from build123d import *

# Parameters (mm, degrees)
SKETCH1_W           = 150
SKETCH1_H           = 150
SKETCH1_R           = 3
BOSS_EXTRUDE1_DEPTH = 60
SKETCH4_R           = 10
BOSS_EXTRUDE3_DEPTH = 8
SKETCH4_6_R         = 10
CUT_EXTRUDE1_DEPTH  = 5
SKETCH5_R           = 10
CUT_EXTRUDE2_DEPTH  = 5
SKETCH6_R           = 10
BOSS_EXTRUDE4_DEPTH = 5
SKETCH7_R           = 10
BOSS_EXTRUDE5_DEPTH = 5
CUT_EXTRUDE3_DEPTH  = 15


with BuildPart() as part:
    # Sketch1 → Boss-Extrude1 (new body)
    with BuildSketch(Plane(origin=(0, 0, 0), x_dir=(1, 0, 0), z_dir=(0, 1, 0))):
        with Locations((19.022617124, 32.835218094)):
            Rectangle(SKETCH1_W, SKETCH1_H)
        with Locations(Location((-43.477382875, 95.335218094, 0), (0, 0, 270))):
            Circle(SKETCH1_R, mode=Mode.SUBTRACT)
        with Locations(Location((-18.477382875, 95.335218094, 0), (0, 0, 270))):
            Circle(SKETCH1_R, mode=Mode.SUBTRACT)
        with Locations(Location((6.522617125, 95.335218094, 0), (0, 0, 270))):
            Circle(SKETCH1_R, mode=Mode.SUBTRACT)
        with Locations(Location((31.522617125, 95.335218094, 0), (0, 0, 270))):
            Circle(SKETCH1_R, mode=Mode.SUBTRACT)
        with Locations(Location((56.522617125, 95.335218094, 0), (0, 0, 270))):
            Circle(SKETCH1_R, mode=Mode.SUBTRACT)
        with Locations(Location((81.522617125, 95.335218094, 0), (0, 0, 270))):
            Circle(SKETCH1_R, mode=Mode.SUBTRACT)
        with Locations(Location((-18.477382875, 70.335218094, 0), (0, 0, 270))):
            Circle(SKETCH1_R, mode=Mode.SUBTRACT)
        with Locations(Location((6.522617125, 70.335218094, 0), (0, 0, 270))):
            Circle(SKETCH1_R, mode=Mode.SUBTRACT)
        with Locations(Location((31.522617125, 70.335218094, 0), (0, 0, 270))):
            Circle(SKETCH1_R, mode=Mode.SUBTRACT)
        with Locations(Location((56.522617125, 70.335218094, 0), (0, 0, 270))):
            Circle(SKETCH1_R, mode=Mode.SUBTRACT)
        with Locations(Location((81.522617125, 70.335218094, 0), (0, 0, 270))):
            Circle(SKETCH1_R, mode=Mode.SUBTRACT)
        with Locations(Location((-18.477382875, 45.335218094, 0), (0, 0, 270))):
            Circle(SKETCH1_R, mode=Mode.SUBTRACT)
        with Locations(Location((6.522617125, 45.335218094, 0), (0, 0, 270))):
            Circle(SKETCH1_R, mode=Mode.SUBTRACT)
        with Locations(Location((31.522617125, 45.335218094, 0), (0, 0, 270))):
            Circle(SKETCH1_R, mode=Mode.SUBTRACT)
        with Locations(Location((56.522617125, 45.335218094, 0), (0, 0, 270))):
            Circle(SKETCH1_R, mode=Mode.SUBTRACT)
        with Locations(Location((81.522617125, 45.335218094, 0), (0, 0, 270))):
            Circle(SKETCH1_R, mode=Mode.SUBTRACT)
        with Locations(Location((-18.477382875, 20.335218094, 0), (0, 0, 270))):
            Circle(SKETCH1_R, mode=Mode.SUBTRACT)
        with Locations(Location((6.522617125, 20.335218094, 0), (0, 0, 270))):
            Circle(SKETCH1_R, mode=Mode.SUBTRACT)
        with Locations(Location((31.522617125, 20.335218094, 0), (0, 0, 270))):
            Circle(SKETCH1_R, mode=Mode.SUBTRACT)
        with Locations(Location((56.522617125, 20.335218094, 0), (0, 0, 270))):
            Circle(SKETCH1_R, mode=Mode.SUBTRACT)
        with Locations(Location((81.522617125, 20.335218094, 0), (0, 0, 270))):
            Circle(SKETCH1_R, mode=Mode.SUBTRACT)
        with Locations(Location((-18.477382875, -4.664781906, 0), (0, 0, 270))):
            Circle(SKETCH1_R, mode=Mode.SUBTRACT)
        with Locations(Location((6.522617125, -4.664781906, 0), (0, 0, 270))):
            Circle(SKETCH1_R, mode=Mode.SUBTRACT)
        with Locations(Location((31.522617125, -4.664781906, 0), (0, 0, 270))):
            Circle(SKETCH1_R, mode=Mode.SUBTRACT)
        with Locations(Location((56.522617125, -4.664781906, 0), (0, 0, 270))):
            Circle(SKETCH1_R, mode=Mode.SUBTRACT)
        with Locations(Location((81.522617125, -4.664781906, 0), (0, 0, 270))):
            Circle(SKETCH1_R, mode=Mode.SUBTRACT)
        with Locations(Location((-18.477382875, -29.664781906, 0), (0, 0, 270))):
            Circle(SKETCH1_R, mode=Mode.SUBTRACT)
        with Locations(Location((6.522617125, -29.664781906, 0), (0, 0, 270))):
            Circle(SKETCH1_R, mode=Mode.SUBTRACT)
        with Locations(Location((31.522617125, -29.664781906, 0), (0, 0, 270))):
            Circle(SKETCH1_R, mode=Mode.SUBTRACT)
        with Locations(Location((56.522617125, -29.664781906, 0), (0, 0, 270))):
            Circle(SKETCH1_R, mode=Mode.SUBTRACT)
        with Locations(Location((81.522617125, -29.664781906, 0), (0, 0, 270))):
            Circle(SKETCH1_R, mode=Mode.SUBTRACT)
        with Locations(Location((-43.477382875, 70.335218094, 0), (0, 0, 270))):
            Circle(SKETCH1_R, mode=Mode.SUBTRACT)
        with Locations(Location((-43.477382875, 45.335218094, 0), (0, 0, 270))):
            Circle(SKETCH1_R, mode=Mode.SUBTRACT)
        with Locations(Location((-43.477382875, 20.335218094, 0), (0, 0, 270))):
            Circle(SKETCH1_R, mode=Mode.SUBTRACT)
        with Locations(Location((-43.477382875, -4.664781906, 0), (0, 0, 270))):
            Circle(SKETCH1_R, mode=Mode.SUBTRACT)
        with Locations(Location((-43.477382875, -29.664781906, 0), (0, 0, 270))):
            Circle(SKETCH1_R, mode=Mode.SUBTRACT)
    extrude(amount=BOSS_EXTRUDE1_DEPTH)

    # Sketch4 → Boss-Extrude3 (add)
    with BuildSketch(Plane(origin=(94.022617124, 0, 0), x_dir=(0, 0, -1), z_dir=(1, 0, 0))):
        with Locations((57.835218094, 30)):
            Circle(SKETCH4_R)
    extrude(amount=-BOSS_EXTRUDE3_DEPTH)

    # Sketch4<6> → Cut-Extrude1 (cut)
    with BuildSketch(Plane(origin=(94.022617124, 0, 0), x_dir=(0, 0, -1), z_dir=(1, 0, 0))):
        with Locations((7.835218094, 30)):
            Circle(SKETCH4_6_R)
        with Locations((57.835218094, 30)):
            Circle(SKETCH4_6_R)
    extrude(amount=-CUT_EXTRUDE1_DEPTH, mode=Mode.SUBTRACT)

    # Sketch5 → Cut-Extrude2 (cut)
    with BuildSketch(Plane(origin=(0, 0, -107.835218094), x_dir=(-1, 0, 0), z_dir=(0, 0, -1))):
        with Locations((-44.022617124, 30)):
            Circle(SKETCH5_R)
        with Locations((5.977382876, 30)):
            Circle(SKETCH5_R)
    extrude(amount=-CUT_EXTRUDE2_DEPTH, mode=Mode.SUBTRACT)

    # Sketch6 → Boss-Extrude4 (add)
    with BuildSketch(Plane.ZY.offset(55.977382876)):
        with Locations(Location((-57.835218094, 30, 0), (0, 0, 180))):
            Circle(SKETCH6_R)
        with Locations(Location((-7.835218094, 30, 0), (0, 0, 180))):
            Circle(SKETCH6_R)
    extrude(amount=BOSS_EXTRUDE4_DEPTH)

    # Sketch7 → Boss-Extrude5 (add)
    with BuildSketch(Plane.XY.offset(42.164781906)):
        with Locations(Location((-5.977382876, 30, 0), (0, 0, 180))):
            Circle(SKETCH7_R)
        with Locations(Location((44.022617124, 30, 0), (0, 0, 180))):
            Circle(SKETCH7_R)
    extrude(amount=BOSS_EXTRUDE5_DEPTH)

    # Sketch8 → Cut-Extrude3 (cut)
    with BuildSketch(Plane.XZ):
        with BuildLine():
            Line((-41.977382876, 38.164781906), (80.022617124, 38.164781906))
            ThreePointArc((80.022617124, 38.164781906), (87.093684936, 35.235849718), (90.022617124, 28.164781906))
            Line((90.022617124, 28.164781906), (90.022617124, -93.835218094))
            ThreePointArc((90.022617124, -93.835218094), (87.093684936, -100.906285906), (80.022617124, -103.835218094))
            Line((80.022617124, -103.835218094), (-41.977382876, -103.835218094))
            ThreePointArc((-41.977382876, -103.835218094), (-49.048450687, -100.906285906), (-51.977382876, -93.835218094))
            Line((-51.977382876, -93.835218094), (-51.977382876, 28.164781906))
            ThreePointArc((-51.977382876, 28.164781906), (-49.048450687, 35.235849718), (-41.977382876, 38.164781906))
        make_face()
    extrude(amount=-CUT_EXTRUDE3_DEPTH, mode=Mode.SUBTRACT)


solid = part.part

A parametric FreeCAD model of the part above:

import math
import FreeCAD as App
import Part
import Sketcher

V = App.Vector


def add_polygon(sketch, points):
    """Adds a closed chain of lines whose ends are joined by coincident constraints."""
    first, n = sketch.GeometryCount, len(points)
    for a, b in zip(points, points[1:] + points[:1]):
        sketch.addGeometry(Part.LineSegment(App.Vector(*a, 0), App.Vector(*b, 0)), False)
    for i in range(n):
        sketch.addConstraint(Sketcher.Constraint("Coincident", first + i, 2, first + (i + 1) % n, 1))

doc = App.newDocument("Part")
body = doc.addObject("PartDesign::Body", "Body")

sketch1 = body.newObject("Sketcher::SketchObject", "Sketch")
sketch1.AttachmentSupport = (doc.getObject("XZ_Plane"), [""])
sketch1.MapMode = "FlatFace"
add_polygon(sketch1, [(-55.977383, -107.835218), (-55.977383, 42.164782), (94.022617, 42.164782), (94.022617, -107.835218)])
sketch1.addGeometry(Part.Circle(V(-43.477383, 29.664782, 0), V(0, 0, 1), 3), False)
sketch1.addGeometry(Part.Circle(V(-18.477383, 29.664782, 0), V(0, 0, 1), 3), False)
sketch1.addGeometry(Part.Circle(V(-43.477383, 4.664782, 0), V(0, 0, 1), 3), False)
sketch1.addGeometry(Part.Circle(V(-18.477383, 4.664782, 0), V(0, 0, 1), 3), False)
sketch1.addGeometry(Part.Circle(V(6.522617, 29.664782, 0), V(0, 0, 1), 3), False)
sketch1.addGeometry(Part.Circle(V(6.522617, 4.664782, 0), V(0, 0, 1), 3), False)
sketch1.addGeometry(Part.Circle(V(-43.477383, -20.335218, 0), V(0, 0, 1), 3), False)
sketch1.addGeometry(Part.Circle(V(-18.477383, -20.335218, 0), V(0, 0, 1), 3), False)
sketch1.addGeometry(Part.Circle(V(6.522617, -20.335218, 0), V(0, 0, 1), 3), False)
sketch1.addGeometry(Part.Circle(V(31.522617, 29.664782, 0), V(0, 0, 1), 3), False)
sketch1.addGeometry(Part.Circle(V(31.522617, 4.664782, 0), V(0, 0, 1), 3), False)
sketch1.addGeometry(Part.Circle(V(56.522617, 29.664782, 0), V(0, 0, 1), 3), False)
sketch1.addGeometry(Part.Circle(V(81.522617, 29.664782, 0), V(0, 0, 1), 3), False)
sketch1.addGeometry(Part.Circle(V(56.522617, 4.664782, 0), V(0, 0, 1), 3), False)
sketch1.addGeometry(Part.Circle(V(81.522617, 4.664782, 0), V(0, 0, 1), 3), False)
sketch1.addGeometry(Part.Circle(V(31.522617, -20.335218, 0), V(0, 0, 1), 3), False)
sketch1.addGeometry(Part.Circle(V(56.522617, -20.335218, 0), V(0, 0, 1), 3), False)
sketch1.addGeometry(Part.Circle(V(81.522617, -20.335218, 0), V(0, 0, 1), 3), False)
sketch1.addGeometry(Part.Circle(V(-43.477383, -45.335218, 0), V(0, 0, 1), 3), False)
sketch1.addGeometry(Part.Circle(V(-18.477383, -45.335218, 0), V(0, 0, 1), 3), False)
sketch1.addGeometry(Part.Circle(V(6.522617, -45.335218, 0), V(0, 0, 1), 3), False)
sketch1.addGeometry(Part.Circle(V(-43.477383, -70.335218, 0), V(0, 0, 1), 3), False)
sketch1.addGeometry(Part.Circle(V(-18.477383, -70.335218, 0), V(0, 0, 1), 3), False)
sketch1.addGeometry(Part.Circle(V(-43.477383, -95.335218, 0), V(0, 0, 1), 3), False)
sketch1.addGeometry(Part.Circle(V(-18.477383, -95.335218, 0), V(0, 0, 1), 3), False)
sketch1.addGeometry(Part.Circle(V(6.522617, -70.335218, 0), V(0, 0, 1), 3), False)
sketch1.addGeometry(Part.Circle(V(6.522617, -95.335218, 0), V(0, 0, 1), 3), False)
sketch1.addGeometry(Part.Circle(V(31.522617, -45.335218, 0), V(0, 0, 1), 3), False)
sketch1.addGeometry(Part.Circle(V(56.522617, -45.335218, 0), V(0, 0, 1), 3), False)
sketch1.addGeometry(Part.Circle(V(81.522617, -45.335218, 0), V(0, 0, 1), 3), False)
sketch1.addGeometry(Part.Circle(V(31.522617, -70.335218, 0), V(0, 0, 1), 3), False)
sketch1.addGeometry(Part.Circle(V(31.522617, -95.335218, 0), V(0, 0, 1), 3), False)
sketch1.addGeometry(Part.Circle(V(56.522617, -70.335218, 0), V(0, 0, 1), 3), False)
sketch1.addGeometry(Part.Circle(V(81.522617, -70.335218, 0), V(0, 0, 1), 3), False)
sketch1.addGeometry(Part.Circle(V(56.522617, -95.335218, 0), V(0, 0, 1), 3), False)
sketch1.addGeometry(Part.Circle(V(81.522617, -95.335218, 0), V(0, 0, 1), 3), False)
sketch1.addConstraint(Sketcher.Constraint("Vertical", 0))
sketch1.addConstraint(Sketcher.Constraint("Horizontal", 1))
sketch1.addConstraint(Sketcher.Constraint("Vertical", 2))
sketch1.addConstraint(Sketcher.Constraint("Horizontal", 3))
sketch1.addConstraint(Sketcher.Constraint("Equal", 4, 5))
sketch1.addConstraint(Sketcher.Constraint("Equal", 5, 6))
sketch1.addConstraint(Sketcher.Constraint("Equal", 6, 7))
sketch1.addConstraint(Sketcher.Constraint("Equal", 7, 8))
sketch1.addConstraint(Sketcher.Constraint("Equal", 8, 9))
sketch1.addConstraint(Sketcher.Constraint("Equal", 9, 10))
sketch1.addConstraint(Sketcher.Constraint("Equal", 10, 11))
sketch1.addConstraint(Sketcher.Constraint("Equal", 11, 12))
sketch1.addConstraint(Sketcher.Constraint("Equal", 12, 13))
sketch1.addConstraint(Sketcher.Constraint("Equal", 13, 14))
sketch1.addConstraint(Sketcher.Constraint("Equal", 14, 15))
sketch1.addConstraint(Sketcher.Constraint("Equal", 15, 16))
sketch1.addConstraint(Sketcher.Constraint("Equal", 16, 17))
sketch1.addConstraint(Sketcher.Constraint("Equal", 17, 18))
sketch1.addConstraint(Sketcher.Constraint("Equal", 18, 19))
sketch1.addConstraint(Sketcher.Constraint("Equal", 19, 20))
sketch1.addConstraint(Sketcher.Constraint("Equal", 20, 21))
sketch1.addConstraint(Sketcher.Constraint("Equal", 21, 22))
sketch1.addConstraint(Sketcher.Constraint("Equal", 22, 23))
sketch1.addConstraint(Sketcher.Constraint("Equal", 23, 24))
sketch1.addConstraint(Sketcher.Constraint("Equal", 24, 25))
sketch1.addConstraint(Sketcher.Constraint("Equal", 25, 26))
sketch1.addConstraint(Sketcher.Constraint("Equal", 26, 27))
sketch1.addConstraint(Sketcher.Constraint("Equal", 27, 28))
sketch1.addConstraint(Sketcher.Constraint("Equal", 28, 29))
sketch1.addConstraint(Sketcher.Constraint("Equal", 29, 30))
sketch1.addConstraint(Sketcher.Constraint("Equal", 30, 31))
sketch1.addConstraint(Sketcher.Constraint("Equal", 31, 32))
sketch1.addConstraint(Sketcher.Constraint("Equal", 32, 33))
sketch1.addConstraint(Sketcher.Constraint("Equal", 33, 34))
sketch1.addConstraint(Sketcher.Constraint("Equal", 34, 35))
sketch1.addConstraint(Sketcher.Constraint("Equal", 35, 36))
sketch1.addConstraint(Sketcher.Constraint("Equal", 36, 37))
sketch1.addConstraint(Sketcher.Constraint("Equal", 37, 38))
sketch1.addConstraint(Sketcher.Constraint("Equal", 38, 39))
sketch1.addConstraint(Sketcher.Constraint("Horizontal", 4, 3, 5, 3))
sketch1.addConstraint(Sketcher.Constraint("Horizontal", 6, 3, 7, 3))
sketch1.addConstraint(Sketcher.Constraint("Horizontal", 5, 3, 8, 3))
sketch1.addConstraint(Sketcher.Constraint("Horizontal", 7, 3, 9, 3))
sketch1.addConstraint(Sketcher.Constraint("Horizontal", 10, 3, 11, 3))
sketch1.addConstraint(Sketcher.Constraint("Horizontal", 11, 3, 12, 3))
sketch1.addConstraint(Sketcher.Constraint("Horizontal", 8, 3, 13, 3))
sketch1.addConstraint(Sketcher.Constraint("Horizontal", 9, 3, 14, 3))
sketch1.addConstraint(Sketcher.Constraint("Horizontal", 13, 3, 15, 3))
sketch1.addConstraint(Sketcher.Constraint("Horizontal", 15, 3, 16, 3))
sketch1.addConstraint(Sketcher.Constraint("Horizontal", 14, 3, 17, 3))
sketch1.addConstraint(Sketcher.Constraint("Horizontal", 17, 3, 18, 3))
sketch1.addConstraint(Sketcher.Constraint("Horizontal", 12, 3, 19, 3))
sketch1.addConstraint(Sketcher.Constraint("Horizontal", 19, 3, 20, 3))
sketch1.addConstraint(Sketcher.Constraint("Horizontal", 20, 3, 21, 3))
sketch1.addConstraint(Sketcher.Constraint("Horizontal", 22, 3, 23, 3))
sketch1.addConstraint(Sketcher.Constraint("Horizontal", 23, 3, 24, 3))
sketch1.addConstraint(Sketcher.Constraint("Horizontal", 25, 3, 26, 3))
sketch1.addConstraint(Sketcher.Constraint("Horizontal", 27, 3, 28, 3))
sketch1.addConstraint(Sketcher.Constraint("Horizontal", 26, 3, 29, 3))
sketch1.addConstraint(Sketcher.Constraint("Horizontal", 28, 3, 30, 3))
sketch1.addConstraint(Sketcher.Constraint("Horizontal", 24, 3, 31, 3))
sketch1.addConstraint(Sketcher.Constraint("Horizontal", 31, 3, 32, 3))
sketch1.addConstraint(Sketcher.Constraint("Horizontal", 32, 3, 33, 3))
sketch1.addConstraint(Sketcher.Constraint("Horizontal", 29, 3, 34, 3))
sketch1.addConstraint(Sketcher.Constraint("Horizontal", 30, 3, 35, 3))
sketch1.addConstraint(Sketcher.Constraint("Horizontal", 34, 3, 36, 3))
sketch1.addConstraint(Sketcher.Constraint("Horizontal", 36, 3, 37, 3))
sketch1.addConstraint(Sketcher.Constraint("Horizontal", 35, 3, 38, 3))
sketch1.addConstraint(Sketcher.Constraint("Horizontal", 38, 3, 39, 3))
sketch1.addConstraint(Sketcher.Constraint("Vertical", 4, 3, 6, 3))
sketch1.addConstraint(Sketcher.Constraint("Vertical", 5, 3, 7, 3))
sketch1.addConstraint(Sketcher.Constraint("Vertical", 8, 3, 9, 3))
sketch1.addConstraint(Sketcher.Constraint("Vertical", 6, 3, 10, 3))
sketch1.addConstraint(Sketcher.Constraint("Vertical", 7, 3, 11, 3))
sketch1.addConstraint(Sketcher.Constraint("Vertical", 9, 3, 12, 3))
sketch1.addConstraint(Sketcher.Constraint("Vertical", 13, 3, 14, 3))
sketch1.addConstraint(Sketcher.Constraint("Vertical", 15, 3, 17, 3))
sketch1.addConstraint(Sketcher.Constraint("Vertical", 16, 3, 18, 3))
sketch1.addConstraint(Sketcher.Constraint("Vertical", 14, 3, 19, 3))
sketch1.addConstraint(Sketcher.Constraint("Vertical", 17, 3, 20, 3))
sketch1.addConstraint(Sketcher.Constraint("Vertical", 18, 3, 21, 3))
sketch1.addConstraint(Sketcher.Constraint("Vertical", 10, 3, 22, 3))
sketch1.addConstraint(Sketcher.Constraint("Vertical", 11, 3, 23, 3))
sketch1.addConstraint(Sketcher.Constraint("Vertical", 12, 3, 24, 3))
sketch1.addConstraint(Sketcher.Constraint("Vertical", 22, 3, 25, 3))
sketch1.addConstraint(Sketcher.Constraint("Vertical", 23, 3, 26, 3))
sketch1.addConstraint(Sketcher.Constraint("Vertical", 25, 3, 27, 3))
sketch1.addConstraint(Sketcher.Constraint("Vertical", 26, 3, 28, 3))
sketch1.addConstraint(Sketcher.Constraint("Vertical", 24, 3, 29, 3))
sketch1.addConstraint(Sketcher.Constraint("Vertical", 29, 3, 30, 3))
sketch1.addConstraint(Sketcher.Constraint("Vertical", 19, 3, 31, 3))
sketch1.addConstraint(Sketcher.Constraint("Vertical", 20, 3, 32, 3))
sketch1.addConstraint(Sketcher.Constraint("Vertical", 21, 3, 33, 3))
sketch1.addConstraint(Sketcher.Constraint("Vertical", 31, 3, 34, 3))
sketch1.addConstraint(Sketcher.Constraint("Vertical", 34, 3, 35, 3))
sketch1.addConstraint(Sketcher.Constraint("Vertical", 32, 3, 36, 3))
sketch1.addConstraint(Sketcher.Constraint("Vertical", 33, 3, 37, 3))
sketch1.addConstraint(Sketcher.Constraint("Vertical", 36, 3, 38, 3))
sketch1.addConstraint(Sketcher.Constraint("Vertical", 37, 3, 39, 3))
sketch1.addConstraint(Sketcher.Constraint("Equal", 3, 0))
sketch1.addConstraint(Sketcher.Constraint("Diameter", 4, 6.0))
sketch1.addConstraint(Sketcher.Constraint("DistanceX", 1, 1, 1, 2, 150.0))
sketch1.addConstraint(Sketcher.Constraint("DistanceX", 4, 3, 5, 3, 25.0))
sketch1.addConstraint(Sketcher.Constraint("DistanceY", 6, 3, 4, 3, 25.0))
sketch1.addConstraint(Sketcher.Constraint("DistanceX", 5, 3, 8, 3, 25.0))
sketch1.addConstraint(Sketcher.Constraint("DistanceY", 10, 3, 6, 3, 25.0))
sketch1.addConstraint(Sketcher.Constraint("DistanceX", 8, 3, 13, 3, 25.0))
sketch1.addConstraint(Sketcher.Constraint("DistanceX", 13, 3, 15, 3, 25.0))
sketch1.addConstraint(Sketcher.Constraint("DistanceX", 15, 3, 16, 3, 25.0))
sketch1.addConstraint(Sketcher.Constraint("DistanceY", 22, 3, 10, 3, 25.0))
sketch1.addConstraint(Sketcher.Constraint("DistanceY", 25, 3, 22, 3, 25.0))
sketch1.addConstraint(Sketcher.Constraint("DistanceY", 27, 3, 25, 3, 25.0))
sketch1.addConstraint(Sketcher.Constraint("DistanceX", 0, 2, 4, 3, 12.5))
sketch1.addConstraint(Sketcher.Constraint("DistanceY", 4, 3, 0, 2, 12.5))
sketch1.addConstraint(Sketcher.Constraint("DistanceY", -1, 1, 4, 3, 29.664782))
sketch1.addConstraint(Sketcher.Constraint("DistanceX", 4, 3, -1, 1, 43.477383))
pad1 = body.newObject("PartDesign::Pad", "Pad")
pad1.Profile = sketch1
pad1.Length = 60
pad1.Reversed = True

sketch2 = body.newObject("Sketcher::SketchObject", "Sketch001")
sketch2.AttachmentSupport = (doc.getObject("YZ_Plane"), [""])
sketch2.MapMode = "FlatFace"
sketch2.AttachmentOffset = App.Placement(V(0, 0, 94.022617), App.Rotation())
sketch2.addGeometry(Part.Circle(V(30, -57.835218, 0), V(0, 0, 1), 10), False)
sketch2.addConstraint(Sketcher.Constraint("Diameter", 0, 20.0))
sketch2.addConstraint(Sketcher.Constraint("DistanceX", -1, 1, 0, 3, 30.0))
sketch2.addConstraint(Sketcher.Constraint("DistanceY", 0, 3, -1, 1, 57.835218))
pad2 = body.newObject("PartDesign::Pad", "Pad001")
pad2.Profile = sketch2
pad2.Length = 8
pad2.Reversed = True

sketch3 = body.newObject("Sketcher::SketchObject", "Sketch002")
sketch3.AttachmentSupport = (doc.getObject("YZ_Plane"), [""])
sketch3.MapMode = "FlatFace"
sketch3.AttachmentOffset = App.Placement(V(0, 0, 94.022617), App.Rotation())
sketch3.addGeometry(Part.Circle(V(30, -7.835218, 0), V(0, 0, 1), 10), False)
sketch3.addGeometry(Part.Circle(V(30, -57.835218, 0), V(0, 0, 1), 10), False)
sketch3.addConstraint(Sketcher.Constraint("Equal", 0, 1))
sketch3.addConstraint(Sketcher.Constraint("Vertical", 0, 3, 1, 3))
sketch3.addConstraint(Sketcher.Constraint("Diameter", 0, 20.0))
sketch3.addConstraint(Sketcher.Constraint("DistanceX", -1, 1, 0, 3, 30.0))
sketch3.addConstraint(Sketcher.Constraint("DistanceY", 1, 3, 0, 3, 50.0))
sketch3.addConstraint(Sketcher.Constraint("DistanceY", 0, 3, -1, 1, 7.835218))
pocket1 = body.newObject("PartDesign::Pocket", "Pocket")
pocket1.Profile = sketch3
pocket1.Length = 5

sketch4 = body.newObject("Sketcher::SketchObject", "Sketch003")
sketch4.AttachmentSupport = (doc.getObject("XY_Plane"), [""])
sketch4.MapMode = "FlatFace"
sketch4.AttachmentOffset = App.Placement(V(0, 0, -107.835218), App.Rotation())
sketch4.addGeometry(Part.Circle(V(44.022617, 30, 0), V(0, 0, 1), 10), False)
sketch4.addGeometry(Part.Circle(V(-5.977383, 30, 0), V(0, 0, 1), 10), False)
sketch4.addConstraint(Sketcher.Constraint("Equal", 0, 1))
sketch4.addConstraint(Sketcher.Constraint("Horizontal", 0, 3, 1, 3))
sketch4.addConstraint(Sketcher.Constraint("Diameter", 0, 20.0))
sketch4.addConstraint(Sketcher.Constraint("DistanceY", -1, 1, 0, 3, 30.0))
sketch4.addConstraint(Sketcher.Constraint("DistanceX", 1, 3, 0, 3, 50.0))
sketch4.addConstraint(Sketcher.Constraint("DistanceX", -1, 1, 0, 3, 44.022617))
pocket2 = body.newObject("PartDesign::Pocket", "Pocket001")
pocket2.Profile = sketch4
pocket2.Length = 5
pocket2.Reversed = True

sketch5 = body.newObject("Sketcher::SketchObject", "Sketch004")
sketch5.AttachmentSupport = (doc.getObject("YZ_Plane"), [""])
sketch5.MapMode = "FlatFace"
sketch5.AttachmentOffset = App.Placement(V(0, 0, -55.977383), App.Rotation())
sketch5.addGeometry(Part.Circle(V(30, -57.835218, 0), V(0, 0, 1), 10), False)
sketch5.addGeometry(Part.Circle(V(30, -7.835218, 0), V(0, 0, 1), 10), False)
sketch5.addConstraint(Sketcher.Constraint("Equal", 0, 1))
sketch5.addConstraint(Sketcher.Constraint("Vertical", 0, 3, 1, 3))
sketch5.addConstraint(Sketcher.Constraint("Diameter", 0, 20.0))
sketch5.addConstraint(Sketcher.Constraint("DistanceX", -1, 1, 0, 3, 30.0))
sketch5.addConstraint(Sketcher.Constraint("DistanceY", 0, 3, 1, 3, 50.0))
sketch5.addConstraint(Sketcher.Constraint("DistanceY", 0, 3, -1, 1, 57.835218))
pad3 = body.newObject("PartDesign::Pad", "Pad002")
pad3.Profile = sketch5
pad3.Length = 5
pad3.Reversed = True

sketch6 = body.newObject("Sketcher::SketchObject", "Sketch005")
sketch6.AttachmentSupport = (doc.getObject("XY_Plane"), [""])
sketch6.MapMode = "FlatFace"
sketch6.AttachmentOffset = App.Placement(V(0, 0, 42.164782), App.Rotation())
sketch6.addGeometry(Part.Circle(V(-5.977383, 30, 0), V(0, 0, 1), 10), False)
sketch6.addGeometry(Part.Circle(V(44.022617, 30, 0), V(0, 0, 1), 10), False)
sketch6.addConstraint(Sketcher.Constraint("Equal", 0, 1))
sketch6.addConstraint(Sketcher.Constraint("Horizontal", 0, 3, 1, 3))
sketch6.addConstraint(Sketcher.Constraint("Diameter", 0, 20.0))
sketch6.addConstraint(Sketcher.Constraint("DistanceY", -1, 1, 0, 3, 30.0))
sketch6.addConstraint(Sketcher.Constraint("DistanceX", 0, 3, 1, 3, 50.0))
sketch6.addConstraint(Sketcher.Constraint("DistanceX", 0, 3, -1, 1, 5.977383))
pad4 = body.newObject("PartDesign::Pad", "Pad003")
pad4.Profile = sketch6
pad4.Length = 5

sketch7 = body.newObject("Sketcher::SketchObject", "Sketch006")
sketch7.AttachmentSupport = (doc.getObject("XZ_Plane"), [""])
sketch7.MapMode = "FlatFace"
sketch7.addGeometry(Part.LineSegment(V(80.022617, 38.164782, 0), V(-41.977383, 38.164782, 0)), False)
sketch7.addGeometry(Part.ArcOfCircle(Part.Circle(V(-41.977383, 28.164782, 0), V(0, 0, 1), 10), math.radians(90), math.radians(180)), False)
sketch7.addGeometry(Part.LineSegment(V(-51.977383, 28.164782, 0), V(-51.977383, -93.835218, 0)), False)
sketch7.addGeometry(Part.ArcOfCircle(Part.Circle(V(-41.977383, -93.835218, 0), V(0, 0, 1), 10), math.radians(-180), math.radians(-90)), False)
sketch7.addGeometry(Part.LineSegment(V(-41.977383, -103.835218, 0), V(80.022617, -103.835218, 0)), False)
sketch7.addGeometry(Part.ArcOfCircle(Part.Circle(V(80.022617, -93.835218, 0), V(0, 0, 1), 10), math.radians(-90), math.radians(0)), False)
sketch7.addGeometry(Part.LineSegment(V(90.022617, -93.835218, 0), V(90.022617, 28.164782, 0)), False)
sketch7.addGeometry(Part.ArcOfCircle(Part.Circle(V(80.022617, 28.164782, 0), V(0, 0, 1), 10), math.radians(0), math.radians(90)), False)
sketch7.addConstraint(Sketcher.Constraint("Tangent", 0, 2, 1, 1))
sketch7.addConstraint(Sketcher.Constraint("Tangent", 1, 2, 2, 1))
sketch7.addConstraint(Sketcher.Constraint("Tangent", 2, 2, 3, 1))
sketch7.addConstraint(Sketcher.Constraint("Tangent", 3, 2, 4, 1))
sketch7.addConstraint(Sketcher.Constraint("Tangent", 4, 2, 5, 1))
sketch7.addConstraint(Sketcher.Constraint("Tangent", 5, 2, 6, 1))
sketch7.addConstraint(Sketcher.Constraint("Tangent", 6, 2, 7, 1))
sketch7.addConstraint(Sketcher.Constraint("Tangent", 7, 2, 0, 1))
sketch7.addConstraint(Sketcher.Constraint("Horizontal", 0))
sketch7.addConstraint(Sketcher.Constraint("Vertical", 2))
sketch7.addConstraint(Sketcher.Constraint("Horizontal", 4))
sketch7.addConstraint(Sketcher.Constraint("Vertical", 6))
sketch7.addConstraint(Sketcher.Constraint("Equal", 1, 3))
sketch7.addConstraint(Sketcher.Constraint("Equal", 3, 5))
sketch7.addConstraint(Sketcher.Constraint("Equal", 5, 7))
sketch7.addConstraint(Sketcher.Constraint("Equal", 4, 2))
sketch7.addConstraint(Sketcher.Constraint("Radius", 1, 10.0))
sketch7.addConstraint(Sketcher.Constraint("DistanceX", 0, 2, 0, 1, 122.0))
sketch7.addConstraint(Sketcher.Constraint("DistanceY", -1, 1, 1, 3, 28.164782))
sketch7.addConstraint(Sketcher.Constraint("DistanceX", 1, 3, -1, 1, 41.977383))
pocket3 = body.newObject("PartDesign::Pocket", "Pocket002")
pocket3.Profile = sketch7
pocket3.Length = 15

doc.recompute()
